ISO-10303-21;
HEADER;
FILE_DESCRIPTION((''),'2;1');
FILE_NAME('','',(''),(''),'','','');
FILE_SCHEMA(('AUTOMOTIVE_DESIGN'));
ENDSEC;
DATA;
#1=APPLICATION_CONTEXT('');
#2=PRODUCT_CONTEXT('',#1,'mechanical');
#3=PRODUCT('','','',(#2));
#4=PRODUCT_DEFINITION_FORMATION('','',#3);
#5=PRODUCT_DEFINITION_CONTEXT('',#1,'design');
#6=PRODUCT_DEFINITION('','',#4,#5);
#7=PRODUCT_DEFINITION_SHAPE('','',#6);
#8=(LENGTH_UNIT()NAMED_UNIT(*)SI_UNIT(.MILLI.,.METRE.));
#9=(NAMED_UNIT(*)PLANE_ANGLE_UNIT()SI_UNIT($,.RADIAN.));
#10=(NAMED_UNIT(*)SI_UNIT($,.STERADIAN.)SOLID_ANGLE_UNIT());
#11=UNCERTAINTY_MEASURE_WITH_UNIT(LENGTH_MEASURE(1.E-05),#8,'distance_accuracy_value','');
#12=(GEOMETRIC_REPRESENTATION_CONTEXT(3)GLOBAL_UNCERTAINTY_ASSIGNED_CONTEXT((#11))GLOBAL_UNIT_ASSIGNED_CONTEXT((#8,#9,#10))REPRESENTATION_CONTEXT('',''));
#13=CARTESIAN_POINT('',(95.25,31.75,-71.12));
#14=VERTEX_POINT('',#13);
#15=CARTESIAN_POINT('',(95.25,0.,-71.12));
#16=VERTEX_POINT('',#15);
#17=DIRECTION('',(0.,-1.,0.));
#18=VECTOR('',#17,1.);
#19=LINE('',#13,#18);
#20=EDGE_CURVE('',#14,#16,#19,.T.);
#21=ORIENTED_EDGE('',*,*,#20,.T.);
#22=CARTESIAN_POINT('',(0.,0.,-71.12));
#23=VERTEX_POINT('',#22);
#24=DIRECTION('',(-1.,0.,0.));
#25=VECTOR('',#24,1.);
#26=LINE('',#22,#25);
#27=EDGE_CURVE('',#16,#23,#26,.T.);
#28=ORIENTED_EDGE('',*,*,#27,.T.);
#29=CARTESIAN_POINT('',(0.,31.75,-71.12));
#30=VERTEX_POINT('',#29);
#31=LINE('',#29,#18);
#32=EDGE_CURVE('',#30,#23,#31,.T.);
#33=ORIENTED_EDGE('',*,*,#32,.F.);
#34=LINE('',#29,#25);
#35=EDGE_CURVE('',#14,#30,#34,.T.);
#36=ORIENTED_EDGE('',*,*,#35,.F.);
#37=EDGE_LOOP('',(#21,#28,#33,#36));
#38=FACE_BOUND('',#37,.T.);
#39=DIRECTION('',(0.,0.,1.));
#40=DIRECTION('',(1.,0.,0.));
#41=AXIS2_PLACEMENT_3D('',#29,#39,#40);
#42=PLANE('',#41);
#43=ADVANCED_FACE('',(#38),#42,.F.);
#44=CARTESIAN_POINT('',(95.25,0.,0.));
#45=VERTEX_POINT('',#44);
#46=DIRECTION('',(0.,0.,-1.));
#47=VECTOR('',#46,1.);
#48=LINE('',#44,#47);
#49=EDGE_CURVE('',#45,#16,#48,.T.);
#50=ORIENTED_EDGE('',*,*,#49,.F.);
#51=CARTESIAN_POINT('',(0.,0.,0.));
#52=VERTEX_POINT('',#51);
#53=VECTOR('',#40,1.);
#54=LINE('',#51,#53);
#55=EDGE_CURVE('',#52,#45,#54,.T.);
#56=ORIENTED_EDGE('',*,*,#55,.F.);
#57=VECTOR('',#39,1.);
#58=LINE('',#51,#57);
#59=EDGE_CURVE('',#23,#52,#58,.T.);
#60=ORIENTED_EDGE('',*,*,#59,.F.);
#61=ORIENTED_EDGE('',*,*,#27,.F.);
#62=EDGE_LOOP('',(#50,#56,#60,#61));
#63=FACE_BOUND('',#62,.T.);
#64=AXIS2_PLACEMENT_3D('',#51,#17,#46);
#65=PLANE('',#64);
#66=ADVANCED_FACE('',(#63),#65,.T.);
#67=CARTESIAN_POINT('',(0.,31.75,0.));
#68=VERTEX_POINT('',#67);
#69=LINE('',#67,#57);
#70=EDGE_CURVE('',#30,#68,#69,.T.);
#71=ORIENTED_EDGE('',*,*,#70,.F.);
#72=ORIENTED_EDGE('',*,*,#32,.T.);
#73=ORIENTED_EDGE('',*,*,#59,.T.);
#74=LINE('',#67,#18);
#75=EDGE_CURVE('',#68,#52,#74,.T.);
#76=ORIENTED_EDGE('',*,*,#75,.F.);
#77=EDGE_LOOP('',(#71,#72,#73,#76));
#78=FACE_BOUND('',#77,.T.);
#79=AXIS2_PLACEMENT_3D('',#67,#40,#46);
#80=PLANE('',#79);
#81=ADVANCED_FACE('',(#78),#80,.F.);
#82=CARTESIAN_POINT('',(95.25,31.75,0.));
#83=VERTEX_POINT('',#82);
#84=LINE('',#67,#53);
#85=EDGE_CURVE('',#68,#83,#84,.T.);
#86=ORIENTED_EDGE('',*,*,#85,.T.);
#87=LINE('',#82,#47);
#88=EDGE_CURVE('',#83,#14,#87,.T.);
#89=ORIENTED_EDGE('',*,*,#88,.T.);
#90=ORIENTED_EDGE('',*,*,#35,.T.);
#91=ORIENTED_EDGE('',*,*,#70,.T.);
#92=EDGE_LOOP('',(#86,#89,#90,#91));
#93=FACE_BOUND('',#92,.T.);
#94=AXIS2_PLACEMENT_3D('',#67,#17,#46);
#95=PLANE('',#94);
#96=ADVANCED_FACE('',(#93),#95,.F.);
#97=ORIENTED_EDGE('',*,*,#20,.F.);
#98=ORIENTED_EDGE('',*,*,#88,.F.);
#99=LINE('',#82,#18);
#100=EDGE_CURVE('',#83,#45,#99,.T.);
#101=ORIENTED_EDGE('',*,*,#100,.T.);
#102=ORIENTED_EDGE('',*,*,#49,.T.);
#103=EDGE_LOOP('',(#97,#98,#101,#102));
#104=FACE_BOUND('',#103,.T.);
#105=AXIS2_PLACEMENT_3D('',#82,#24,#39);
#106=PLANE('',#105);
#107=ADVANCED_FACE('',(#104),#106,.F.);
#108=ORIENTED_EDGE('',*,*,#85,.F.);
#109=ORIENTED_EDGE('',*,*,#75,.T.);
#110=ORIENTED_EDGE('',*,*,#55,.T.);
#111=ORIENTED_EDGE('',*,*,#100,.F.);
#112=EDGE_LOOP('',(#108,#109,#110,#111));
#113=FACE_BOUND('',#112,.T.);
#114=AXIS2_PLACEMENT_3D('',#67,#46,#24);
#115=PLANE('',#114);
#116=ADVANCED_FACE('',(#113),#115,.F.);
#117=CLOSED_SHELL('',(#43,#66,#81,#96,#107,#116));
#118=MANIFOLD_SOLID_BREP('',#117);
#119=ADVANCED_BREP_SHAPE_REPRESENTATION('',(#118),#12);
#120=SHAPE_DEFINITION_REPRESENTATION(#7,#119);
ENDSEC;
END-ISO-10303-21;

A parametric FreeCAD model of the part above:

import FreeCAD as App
import Part
import Sketcher
from FreeCAD import Vector
Q = App.Units.Quantity


def add_polygon(sketch, points):
    """Adds a closed chain of lines whose ends are joined by coincident constraints."""
    first, n = sketch.GeometryCount, len(points)
    for a, b in zip(points, points[1:] + points[:1]):
        sketch.addGeometry(Part.LineSegment(App.Vector(*a, 0), App.Vector(*b, 0)), False)
    for i in range(n):
        sketch.addConstraint(Sketcher.Constraint("Coincident", first + i, 2, first + (i + 1) % n, 1))

doc = App.newDocument("Part")
body = doc.addObject("PartDesign::Body", "Body")

sketch1 = body.newObject("Sketcher::SketchObject", "Sketch")
sketch1.AttachmentSupport = (doc.getObject("XZ_Plane"), [""])
sketch1.MapMode = "FlatFace"
add_polygon(sketch1, [(0, -71.12), (0, 0), (95.25, 0), (95.25, -71.12)])
sketch1.addConstraint(Sketcher.Constraint("Vertical", 0))
sketch1.addConstraint(Sketcher.Constraint("Horizontal", 1))
sketch1.addConstraint(Sketcher.Constraint("Vertical", 2))
sketch1.addConstraint(Sketcher.Constraint("Horizontal", 3))
sketch1.addConstraint(Sketcher.Constraint("Coincident", 0, 2, -1, 1))
sketch1.addConstraint(Sketcher.Constraint("DistanceY", 0, 1, 0, 2, Q("2.8 in")))
sketch1.addConstraint(Sketcher.Constraint("DistanceX", 1, 1, 1, 2, Q("3.75 in")))
pad1 = body.newObject("PartDesign::Pad", "Pad")
pad1.Profile = sketch1
pad1.Length = Q("1.25 in")
pad1.Reversed = True

doc.recompute()
